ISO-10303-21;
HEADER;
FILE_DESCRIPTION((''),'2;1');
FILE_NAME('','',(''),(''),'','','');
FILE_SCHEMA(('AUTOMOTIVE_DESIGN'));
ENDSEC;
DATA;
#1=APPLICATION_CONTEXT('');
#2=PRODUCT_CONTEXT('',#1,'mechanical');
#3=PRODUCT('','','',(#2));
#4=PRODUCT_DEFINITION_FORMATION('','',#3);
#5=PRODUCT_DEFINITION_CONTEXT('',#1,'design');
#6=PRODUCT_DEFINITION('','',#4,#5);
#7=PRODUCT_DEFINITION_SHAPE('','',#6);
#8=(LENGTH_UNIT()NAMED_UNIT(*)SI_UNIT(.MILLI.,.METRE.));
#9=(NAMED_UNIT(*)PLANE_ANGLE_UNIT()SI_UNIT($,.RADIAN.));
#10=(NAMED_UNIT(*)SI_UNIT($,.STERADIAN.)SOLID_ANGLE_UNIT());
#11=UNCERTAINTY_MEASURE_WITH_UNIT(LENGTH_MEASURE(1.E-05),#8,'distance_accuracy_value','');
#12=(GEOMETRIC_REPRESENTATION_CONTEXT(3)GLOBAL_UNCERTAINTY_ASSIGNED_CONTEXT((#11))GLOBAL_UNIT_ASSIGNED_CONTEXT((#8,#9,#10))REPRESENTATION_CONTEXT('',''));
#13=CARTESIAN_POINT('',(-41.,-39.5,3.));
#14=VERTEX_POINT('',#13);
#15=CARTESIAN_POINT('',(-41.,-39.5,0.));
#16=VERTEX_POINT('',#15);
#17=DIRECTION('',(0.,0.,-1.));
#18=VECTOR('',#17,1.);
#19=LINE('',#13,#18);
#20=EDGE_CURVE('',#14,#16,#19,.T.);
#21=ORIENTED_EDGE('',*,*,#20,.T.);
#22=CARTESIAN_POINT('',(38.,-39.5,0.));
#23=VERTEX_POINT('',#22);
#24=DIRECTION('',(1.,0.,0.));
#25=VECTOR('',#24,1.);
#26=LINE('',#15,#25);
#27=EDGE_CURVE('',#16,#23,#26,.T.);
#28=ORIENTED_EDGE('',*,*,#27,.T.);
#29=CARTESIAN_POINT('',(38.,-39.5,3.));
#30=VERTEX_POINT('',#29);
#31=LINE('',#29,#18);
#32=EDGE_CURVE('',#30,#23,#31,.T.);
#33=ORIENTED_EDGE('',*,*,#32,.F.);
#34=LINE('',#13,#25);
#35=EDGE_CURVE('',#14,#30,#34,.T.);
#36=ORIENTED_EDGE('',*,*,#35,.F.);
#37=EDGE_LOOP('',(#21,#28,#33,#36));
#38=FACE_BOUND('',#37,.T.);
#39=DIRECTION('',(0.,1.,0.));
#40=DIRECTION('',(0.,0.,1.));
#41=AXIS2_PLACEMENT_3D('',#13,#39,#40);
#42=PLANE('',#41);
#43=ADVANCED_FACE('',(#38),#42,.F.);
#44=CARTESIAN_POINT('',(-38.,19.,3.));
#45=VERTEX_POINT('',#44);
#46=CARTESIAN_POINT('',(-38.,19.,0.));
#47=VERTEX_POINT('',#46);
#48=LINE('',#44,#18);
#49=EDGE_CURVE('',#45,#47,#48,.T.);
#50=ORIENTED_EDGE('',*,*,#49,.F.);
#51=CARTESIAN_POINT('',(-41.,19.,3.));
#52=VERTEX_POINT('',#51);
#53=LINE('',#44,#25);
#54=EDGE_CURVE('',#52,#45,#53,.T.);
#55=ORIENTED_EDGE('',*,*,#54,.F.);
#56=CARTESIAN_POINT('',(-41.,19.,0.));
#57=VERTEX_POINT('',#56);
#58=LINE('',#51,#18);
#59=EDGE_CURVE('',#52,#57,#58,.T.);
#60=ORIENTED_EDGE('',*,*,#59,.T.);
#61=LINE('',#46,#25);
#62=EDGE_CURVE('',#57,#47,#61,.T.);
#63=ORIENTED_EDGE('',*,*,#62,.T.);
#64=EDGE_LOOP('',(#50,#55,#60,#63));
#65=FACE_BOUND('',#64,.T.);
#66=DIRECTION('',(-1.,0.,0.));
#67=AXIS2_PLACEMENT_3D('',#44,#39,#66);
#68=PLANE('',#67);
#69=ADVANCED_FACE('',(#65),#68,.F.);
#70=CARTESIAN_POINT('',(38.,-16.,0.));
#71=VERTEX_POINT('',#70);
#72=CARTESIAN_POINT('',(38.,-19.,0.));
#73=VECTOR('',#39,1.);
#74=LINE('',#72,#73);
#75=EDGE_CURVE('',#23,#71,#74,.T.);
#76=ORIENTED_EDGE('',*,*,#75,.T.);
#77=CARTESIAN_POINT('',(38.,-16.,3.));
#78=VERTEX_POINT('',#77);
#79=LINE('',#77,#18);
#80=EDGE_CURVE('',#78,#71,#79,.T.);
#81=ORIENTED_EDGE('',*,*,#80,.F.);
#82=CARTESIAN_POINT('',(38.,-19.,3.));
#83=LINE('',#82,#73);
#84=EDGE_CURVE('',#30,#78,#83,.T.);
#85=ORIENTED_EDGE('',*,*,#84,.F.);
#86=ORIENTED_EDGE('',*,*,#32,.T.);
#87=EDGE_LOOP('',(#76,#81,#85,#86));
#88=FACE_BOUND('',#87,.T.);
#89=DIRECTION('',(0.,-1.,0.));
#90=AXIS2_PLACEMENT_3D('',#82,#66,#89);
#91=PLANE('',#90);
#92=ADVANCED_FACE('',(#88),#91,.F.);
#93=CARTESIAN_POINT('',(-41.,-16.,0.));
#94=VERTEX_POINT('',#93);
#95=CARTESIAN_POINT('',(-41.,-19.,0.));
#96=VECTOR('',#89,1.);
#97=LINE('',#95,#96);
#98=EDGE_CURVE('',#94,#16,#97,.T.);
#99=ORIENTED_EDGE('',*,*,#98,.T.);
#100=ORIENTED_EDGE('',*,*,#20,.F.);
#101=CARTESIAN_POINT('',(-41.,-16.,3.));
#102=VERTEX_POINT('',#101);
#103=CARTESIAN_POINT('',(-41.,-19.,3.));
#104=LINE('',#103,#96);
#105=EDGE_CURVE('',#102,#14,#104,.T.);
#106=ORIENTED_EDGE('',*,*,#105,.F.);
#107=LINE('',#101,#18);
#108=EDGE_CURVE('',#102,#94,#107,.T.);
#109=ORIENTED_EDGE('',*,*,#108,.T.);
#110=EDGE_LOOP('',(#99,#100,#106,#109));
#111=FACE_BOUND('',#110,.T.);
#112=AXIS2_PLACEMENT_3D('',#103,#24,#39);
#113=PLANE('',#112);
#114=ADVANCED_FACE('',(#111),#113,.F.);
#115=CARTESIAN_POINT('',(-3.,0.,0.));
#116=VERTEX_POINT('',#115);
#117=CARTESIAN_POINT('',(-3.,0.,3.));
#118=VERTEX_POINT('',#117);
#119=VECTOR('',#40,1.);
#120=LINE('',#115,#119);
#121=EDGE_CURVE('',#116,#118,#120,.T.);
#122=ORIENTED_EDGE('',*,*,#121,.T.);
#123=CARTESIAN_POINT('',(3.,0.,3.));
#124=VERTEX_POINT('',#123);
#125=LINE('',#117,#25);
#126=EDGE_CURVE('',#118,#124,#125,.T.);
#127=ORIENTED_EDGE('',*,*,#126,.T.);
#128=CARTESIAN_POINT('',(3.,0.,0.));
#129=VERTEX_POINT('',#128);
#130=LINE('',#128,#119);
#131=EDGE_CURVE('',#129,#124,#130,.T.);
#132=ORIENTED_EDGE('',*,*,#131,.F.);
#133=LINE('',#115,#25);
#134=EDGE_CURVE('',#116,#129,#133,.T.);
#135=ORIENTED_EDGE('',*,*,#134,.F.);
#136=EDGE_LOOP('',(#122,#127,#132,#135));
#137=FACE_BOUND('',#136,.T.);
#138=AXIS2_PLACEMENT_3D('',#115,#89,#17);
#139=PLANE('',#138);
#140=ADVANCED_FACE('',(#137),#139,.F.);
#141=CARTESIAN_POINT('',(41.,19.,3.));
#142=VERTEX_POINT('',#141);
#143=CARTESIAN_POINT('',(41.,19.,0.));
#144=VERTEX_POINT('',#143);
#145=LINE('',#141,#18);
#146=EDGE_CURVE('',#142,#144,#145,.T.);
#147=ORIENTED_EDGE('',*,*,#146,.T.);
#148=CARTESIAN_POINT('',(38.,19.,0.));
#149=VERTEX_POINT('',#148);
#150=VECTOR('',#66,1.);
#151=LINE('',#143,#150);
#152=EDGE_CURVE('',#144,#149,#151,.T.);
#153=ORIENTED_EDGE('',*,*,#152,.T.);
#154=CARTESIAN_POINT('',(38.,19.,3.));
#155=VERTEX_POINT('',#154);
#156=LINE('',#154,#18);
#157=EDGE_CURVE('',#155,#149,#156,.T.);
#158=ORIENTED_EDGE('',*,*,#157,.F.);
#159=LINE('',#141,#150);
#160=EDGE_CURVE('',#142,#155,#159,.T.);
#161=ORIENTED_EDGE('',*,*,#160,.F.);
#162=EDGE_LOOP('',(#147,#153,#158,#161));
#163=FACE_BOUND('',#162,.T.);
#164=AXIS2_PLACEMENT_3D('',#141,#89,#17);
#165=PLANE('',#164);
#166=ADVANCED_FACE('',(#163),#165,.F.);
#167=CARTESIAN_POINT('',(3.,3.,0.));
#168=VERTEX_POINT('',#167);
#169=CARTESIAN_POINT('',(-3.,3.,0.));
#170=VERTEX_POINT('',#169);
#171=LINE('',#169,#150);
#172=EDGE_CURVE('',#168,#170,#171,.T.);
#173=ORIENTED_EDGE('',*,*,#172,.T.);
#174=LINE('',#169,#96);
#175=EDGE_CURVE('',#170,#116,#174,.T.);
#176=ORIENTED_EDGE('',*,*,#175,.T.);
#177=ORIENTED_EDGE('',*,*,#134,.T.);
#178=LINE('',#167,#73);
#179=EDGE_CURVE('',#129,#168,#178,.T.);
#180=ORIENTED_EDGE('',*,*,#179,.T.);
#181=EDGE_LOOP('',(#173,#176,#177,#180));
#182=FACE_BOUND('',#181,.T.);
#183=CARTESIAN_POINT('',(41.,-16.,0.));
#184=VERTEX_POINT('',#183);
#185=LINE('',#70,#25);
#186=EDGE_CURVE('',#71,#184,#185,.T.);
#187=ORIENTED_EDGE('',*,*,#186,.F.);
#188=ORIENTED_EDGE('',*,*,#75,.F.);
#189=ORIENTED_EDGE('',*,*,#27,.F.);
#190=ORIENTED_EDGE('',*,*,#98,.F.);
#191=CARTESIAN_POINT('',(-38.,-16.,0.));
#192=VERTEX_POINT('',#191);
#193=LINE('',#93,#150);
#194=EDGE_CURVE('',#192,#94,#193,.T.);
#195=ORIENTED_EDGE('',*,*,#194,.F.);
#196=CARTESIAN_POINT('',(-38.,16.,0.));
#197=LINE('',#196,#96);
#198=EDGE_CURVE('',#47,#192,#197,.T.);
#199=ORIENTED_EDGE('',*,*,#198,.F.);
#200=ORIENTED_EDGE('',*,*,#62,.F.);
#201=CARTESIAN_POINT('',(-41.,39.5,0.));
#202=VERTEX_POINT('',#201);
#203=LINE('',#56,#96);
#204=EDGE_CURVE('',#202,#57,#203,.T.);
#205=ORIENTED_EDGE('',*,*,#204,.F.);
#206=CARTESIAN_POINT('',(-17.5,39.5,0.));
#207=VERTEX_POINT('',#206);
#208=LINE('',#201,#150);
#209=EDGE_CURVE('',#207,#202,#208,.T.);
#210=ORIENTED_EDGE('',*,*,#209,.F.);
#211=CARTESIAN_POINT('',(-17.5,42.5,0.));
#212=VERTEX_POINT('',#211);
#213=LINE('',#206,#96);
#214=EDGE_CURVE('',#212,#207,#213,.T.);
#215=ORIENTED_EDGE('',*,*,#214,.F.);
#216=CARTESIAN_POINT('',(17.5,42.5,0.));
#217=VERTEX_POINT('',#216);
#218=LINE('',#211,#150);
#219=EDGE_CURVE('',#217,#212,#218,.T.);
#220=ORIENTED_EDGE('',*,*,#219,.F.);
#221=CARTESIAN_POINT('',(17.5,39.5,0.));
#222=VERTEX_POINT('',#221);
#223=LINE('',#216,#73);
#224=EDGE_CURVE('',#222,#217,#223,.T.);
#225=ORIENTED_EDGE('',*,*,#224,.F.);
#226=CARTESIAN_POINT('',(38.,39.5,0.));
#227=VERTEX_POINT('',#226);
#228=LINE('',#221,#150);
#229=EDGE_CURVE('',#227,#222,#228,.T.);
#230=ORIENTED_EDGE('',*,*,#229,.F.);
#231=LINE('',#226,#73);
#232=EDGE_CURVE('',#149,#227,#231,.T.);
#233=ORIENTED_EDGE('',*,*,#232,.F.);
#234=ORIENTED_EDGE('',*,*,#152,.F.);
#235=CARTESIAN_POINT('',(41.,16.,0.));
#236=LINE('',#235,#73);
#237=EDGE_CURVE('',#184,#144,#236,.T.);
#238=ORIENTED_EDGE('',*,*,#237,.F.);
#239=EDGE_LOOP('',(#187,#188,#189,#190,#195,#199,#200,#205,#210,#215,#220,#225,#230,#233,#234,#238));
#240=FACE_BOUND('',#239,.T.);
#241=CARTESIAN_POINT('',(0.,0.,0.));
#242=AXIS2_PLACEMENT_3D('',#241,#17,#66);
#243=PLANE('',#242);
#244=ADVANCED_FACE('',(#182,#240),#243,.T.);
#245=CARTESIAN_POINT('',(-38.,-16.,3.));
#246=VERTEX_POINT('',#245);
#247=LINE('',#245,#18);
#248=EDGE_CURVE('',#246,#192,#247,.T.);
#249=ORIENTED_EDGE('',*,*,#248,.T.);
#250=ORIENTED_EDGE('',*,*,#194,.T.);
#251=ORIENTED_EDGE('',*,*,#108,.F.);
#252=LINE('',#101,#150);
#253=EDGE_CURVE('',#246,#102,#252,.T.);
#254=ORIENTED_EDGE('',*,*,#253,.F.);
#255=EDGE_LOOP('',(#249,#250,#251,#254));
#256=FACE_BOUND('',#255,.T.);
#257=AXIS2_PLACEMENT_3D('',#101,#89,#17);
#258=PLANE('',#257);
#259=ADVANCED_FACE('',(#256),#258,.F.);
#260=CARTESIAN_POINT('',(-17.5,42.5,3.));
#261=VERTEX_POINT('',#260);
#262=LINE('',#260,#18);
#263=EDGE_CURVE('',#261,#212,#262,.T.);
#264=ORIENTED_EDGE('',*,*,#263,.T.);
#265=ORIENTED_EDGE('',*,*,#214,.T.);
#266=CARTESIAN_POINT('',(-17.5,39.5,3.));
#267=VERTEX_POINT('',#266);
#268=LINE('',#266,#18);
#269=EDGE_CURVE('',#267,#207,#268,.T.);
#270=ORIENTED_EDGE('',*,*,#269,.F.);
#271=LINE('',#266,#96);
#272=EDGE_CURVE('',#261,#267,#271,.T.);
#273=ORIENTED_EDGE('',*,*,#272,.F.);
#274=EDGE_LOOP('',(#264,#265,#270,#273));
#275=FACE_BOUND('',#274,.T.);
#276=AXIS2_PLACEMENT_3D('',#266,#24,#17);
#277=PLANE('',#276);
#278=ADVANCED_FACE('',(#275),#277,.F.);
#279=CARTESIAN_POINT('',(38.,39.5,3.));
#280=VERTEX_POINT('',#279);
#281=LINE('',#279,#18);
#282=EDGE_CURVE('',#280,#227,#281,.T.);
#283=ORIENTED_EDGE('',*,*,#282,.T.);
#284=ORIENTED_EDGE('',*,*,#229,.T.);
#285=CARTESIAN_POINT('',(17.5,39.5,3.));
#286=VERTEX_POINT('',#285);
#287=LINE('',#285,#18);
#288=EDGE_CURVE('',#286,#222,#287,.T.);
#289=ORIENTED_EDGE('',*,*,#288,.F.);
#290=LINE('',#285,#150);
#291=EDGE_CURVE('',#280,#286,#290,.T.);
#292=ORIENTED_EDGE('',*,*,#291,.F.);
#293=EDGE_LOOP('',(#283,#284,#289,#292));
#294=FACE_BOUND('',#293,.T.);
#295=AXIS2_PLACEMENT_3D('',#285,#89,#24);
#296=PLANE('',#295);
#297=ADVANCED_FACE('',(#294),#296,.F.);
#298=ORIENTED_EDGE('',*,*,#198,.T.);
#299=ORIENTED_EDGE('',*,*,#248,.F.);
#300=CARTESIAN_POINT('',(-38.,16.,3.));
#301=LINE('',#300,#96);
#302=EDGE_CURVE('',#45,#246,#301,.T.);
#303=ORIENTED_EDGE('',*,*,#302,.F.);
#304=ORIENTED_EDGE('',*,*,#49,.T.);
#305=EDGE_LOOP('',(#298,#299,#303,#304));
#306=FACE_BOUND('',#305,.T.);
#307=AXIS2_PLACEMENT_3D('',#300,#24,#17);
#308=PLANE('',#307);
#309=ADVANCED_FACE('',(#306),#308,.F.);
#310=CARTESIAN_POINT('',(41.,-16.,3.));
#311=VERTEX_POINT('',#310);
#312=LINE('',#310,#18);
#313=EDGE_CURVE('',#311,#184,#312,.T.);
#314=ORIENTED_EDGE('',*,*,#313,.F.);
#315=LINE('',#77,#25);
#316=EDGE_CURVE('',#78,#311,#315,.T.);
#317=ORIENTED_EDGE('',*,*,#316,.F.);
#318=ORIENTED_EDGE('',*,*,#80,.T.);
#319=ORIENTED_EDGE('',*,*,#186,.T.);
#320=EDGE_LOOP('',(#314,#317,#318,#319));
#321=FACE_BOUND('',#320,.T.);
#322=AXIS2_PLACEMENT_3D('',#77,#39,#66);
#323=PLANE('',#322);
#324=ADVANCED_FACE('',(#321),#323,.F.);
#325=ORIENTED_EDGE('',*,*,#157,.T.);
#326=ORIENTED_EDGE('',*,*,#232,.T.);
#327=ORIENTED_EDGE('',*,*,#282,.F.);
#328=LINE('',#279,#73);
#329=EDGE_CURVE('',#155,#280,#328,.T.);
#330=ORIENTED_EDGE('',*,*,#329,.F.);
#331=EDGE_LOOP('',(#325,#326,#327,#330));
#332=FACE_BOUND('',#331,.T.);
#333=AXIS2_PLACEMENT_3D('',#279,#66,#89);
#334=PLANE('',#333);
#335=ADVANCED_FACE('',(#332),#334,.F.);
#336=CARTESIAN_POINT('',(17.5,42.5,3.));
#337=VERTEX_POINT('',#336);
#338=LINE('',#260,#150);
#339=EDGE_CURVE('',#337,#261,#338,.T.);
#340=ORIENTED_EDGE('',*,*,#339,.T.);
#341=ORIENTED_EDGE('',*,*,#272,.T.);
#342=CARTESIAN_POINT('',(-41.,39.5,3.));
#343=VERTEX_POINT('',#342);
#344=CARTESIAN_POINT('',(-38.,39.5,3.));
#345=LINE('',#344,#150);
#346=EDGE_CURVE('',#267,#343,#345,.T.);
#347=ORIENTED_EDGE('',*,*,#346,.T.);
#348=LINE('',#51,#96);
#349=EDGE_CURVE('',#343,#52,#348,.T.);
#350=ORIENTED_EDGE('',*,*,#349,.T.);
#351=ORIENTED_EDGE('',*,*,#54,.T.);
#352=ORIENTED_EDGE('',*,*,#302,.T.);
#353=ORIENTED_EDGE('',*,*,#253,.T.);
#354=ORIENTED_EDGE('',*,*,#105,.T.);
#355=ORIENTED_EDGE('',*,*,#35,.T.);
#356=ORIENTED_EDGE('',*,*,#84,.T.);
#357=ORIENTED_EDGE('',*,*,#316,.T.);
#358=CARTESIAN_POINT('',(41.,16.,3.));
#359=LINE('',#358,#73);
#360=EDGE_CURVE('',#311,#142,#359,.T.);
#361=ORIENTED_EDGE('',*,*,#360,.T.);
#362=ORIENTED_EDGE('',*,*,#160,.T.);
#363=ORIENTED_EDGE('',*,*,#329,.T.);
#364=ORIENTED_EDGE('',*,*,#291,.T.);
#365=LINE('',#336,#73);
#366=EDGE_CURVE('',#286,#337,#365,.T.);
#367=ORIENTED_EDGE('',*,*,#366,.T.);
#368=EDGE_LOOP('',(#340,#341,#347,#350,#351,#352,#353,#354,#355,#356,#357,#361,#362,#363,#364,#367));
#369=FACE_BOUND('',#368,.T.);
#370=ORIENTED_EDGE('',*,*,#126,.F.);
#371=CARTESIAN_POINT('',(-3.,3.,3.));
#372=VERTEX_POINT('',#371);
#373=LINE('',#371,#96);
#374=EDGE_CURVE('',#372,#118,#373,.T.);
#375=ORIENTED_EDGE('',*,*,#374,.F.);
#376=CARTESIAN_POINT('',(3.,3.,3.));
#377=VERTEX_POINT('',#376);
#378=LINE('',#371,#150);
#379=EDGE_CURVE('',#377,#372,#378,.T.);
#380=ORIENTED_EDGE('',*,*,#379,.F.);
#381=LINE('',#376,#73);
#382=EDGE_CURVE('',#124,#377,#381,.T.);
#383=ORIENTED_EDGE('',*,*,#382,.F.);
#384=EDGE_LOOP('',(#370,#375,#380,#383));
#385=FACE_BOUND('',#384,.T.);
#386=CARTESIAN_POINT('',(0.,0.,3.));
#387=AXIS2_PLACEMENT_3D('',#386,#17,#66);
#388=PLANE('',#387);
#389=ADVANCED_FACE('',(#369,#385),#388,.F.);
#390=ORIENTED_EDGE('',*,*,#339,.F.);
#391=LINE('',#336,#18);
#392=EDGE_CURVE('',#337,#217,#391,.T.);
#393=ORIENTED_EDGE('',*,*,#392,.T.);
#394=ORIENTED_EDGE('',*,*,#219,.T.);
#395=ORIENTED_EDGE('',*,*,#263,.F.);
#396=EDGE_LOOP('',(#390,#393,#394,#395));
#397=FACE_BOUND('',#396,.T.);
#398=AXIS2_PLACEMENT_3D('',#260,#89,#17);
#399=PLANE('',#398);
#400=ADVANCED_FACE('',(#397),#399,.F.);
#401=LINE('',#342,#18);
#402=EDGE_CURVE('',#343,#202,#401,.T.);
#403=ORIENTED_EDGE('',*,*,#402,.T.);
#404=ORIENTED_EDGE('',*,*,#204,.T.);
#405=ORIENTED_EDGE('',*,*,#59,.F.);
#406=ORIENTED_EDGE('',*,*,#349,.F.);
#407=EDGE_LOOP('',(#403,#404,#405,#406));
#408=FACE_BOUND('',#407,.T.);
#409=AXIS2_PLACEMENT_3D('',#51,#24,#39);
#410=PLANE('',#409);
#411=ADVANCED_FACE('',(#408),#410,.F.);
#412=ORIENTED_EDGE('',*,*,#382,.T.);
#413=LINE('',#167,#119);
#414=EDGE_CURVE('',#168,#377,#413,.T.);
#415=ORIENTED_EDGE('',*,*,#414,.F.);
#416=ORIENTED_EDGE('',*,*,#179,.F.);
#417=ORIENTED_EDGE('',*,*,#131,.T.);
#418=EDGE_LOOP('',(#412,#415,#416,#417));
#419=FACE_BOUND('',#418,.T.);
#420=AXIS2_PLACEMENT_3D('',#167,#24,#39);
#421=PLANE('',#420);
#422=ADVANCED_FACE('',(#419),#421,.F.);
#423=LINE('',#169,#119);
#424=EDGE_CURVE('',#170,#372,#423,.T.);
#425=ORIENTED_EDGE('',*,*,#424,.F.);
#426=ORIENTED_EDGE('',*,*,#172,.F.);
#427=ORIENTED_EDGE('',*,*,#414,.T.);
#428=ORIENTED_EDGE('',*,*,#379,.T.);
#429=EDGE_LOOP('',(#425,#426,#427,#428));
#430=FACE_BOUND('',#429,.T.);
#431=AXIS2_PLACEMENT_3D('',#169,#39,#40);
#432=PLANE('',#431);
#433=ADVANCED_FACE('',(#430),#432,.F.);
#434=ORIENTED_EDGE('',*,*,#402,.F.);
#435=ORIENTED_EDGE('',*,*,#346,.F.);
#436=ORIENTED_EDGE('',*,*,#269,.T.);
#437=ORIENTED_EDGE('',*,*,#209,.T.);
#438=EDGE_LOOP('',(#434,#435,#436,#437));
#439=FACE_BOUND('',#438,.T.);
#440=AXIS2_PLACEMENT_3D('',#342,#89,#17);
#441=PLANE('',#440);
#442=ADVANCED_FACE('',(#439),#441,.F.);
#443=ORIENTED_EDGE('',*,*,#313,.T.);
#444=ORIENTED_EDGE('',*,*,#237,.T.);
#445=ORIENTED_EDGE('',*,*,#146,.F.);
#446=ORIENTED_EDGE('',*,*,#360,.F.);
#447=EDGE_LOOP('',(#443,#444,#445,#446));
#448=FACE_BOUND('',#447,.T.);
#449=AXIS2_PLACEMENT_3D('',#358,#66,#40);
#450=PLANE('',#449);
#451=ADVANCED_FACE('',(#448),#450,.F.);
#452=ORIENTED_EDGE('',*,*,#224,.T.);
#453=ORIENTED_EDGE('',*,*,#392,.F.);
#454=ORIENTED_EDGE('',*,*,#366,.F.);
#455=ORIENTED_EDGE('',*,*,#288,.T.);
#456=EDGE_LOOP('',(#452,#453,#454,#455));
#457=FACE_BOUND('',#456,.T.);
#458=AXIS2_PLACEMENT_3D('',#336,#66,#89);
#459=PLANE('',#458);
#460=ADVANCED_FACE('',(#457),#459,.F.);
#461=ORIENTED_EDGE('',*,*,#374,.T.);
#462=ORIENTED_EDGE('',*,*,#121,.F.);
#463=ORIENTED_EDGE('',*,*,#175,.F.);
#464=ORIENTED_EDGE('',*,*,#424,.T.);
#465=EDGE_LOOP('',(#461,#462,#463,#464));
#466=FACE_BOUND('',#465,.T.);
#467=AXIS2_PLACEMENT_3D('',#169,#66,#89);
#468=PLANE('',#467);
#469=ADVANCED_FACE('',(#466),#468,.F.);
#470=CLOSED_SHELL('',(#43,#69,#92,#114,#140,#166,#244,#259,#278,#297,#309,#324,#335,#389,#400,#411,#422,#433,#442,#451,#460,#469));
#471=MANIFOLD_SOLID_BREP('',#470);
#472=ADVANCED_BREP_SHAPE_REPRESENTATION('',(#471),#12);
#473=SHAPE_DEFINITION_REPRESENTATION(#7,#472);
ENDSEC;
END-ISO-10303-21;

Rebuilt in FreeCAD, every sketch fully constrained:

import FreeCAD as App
import Part
import Sketcher


def add_polygon(sketch, points):
    """Adds a closed chain of lines whose ends are joined by coincident constraints."""
    first, n = sketch.GeometryCount, len(points)
    for a, b in zip(points, points[1:] + points[:1]):
        sketch.addGeometry(Part.LineSegment(App.Vector(*a, 0), App.Vector(*b, 0)), False)
    for i in range(n):
        sketch.addConstraint(Sketcher.Constraint("Coincident", first + i, 2, first + (i + 1) % n, 1))

doc = App.newDocument("Part")
body = doc.addObject("PartDesign::Body", "Body")

sketch1 = doc.addObject("Sketcher::SketchObject", "Sketch")
body.addObject(sketch1)
sketch1.AttachmentSupport = (doc.XY_Plane, [""])
sketch1.MapMode = "FlatFace"
add_polygon(sketch1, [(-17.5, 39.5), (-41, 39.5), (-41, 19), (-38, 19), (-38, -16), (-41, -16), (-41, -39.5), (38, -39.5), (38, -16), (41, -16), (41, 19), (38, 19), (38, 39.5), (17.5, 39.5), (17.5, 42.5), (-17.5, 42.5)])
sketch1.addConstraint(Sketcher.Constraint("Horizontal", 0))
sketch1.addConstraint(Sketcher.Constraint("Vertical", 1))
sketch1.addConstraint(Sketcher.Constraint("Horizontal", 2))
sketch1.addConstraint(Sketcher.Constraint("Vertical", 3))
sketch1.addConstraint(Sketcher.Constraint("Horizontal", 4))
sketch1.addConstraint(Sketcher.Constraint("Vertical", 5))
sketch1.addConstraint(Sketcher.Constraint("Horizontal", 6))
sketch1.addConstraint(Sketcher.Constraint("Vertical", 7))
sketch1.addConstraint(Sketcher.Constraint("Horizontal", 8))
sketch1.addConstraint(Sketcher.Constraint("Vertical", 9))
sketch1.addConstraint(Sketcher.Constraint("Horizontal", 10))
sketch1.addConstraint(Sketcher.Constraint("Vertical", 11))
sketch1.addConstraint(Sketcher.Constraint("Horizontal", 12))
sketch1.addConstraint(Sketcher.Constraint("Vertical", 13))
sketch1.addConstraint(Sketcher.Constraint("Horizontal", 14))
sketch1.addConstraint(Sketcher.Constraint("Vertical", 15))
sketch1.addConstraint(Sketcher.Constraint("Symmetric", 3, 2, 7, 2, -2))
sketch1.addConstraint(Sketcher.Constraint("Symmetric", 1, 2, 9, 2, -2))
sketch1.addConstraint(Sketcher.Constraint("Symmetric", 12, 2, 15, 2, -2))
sketch1.addConstraint(Sketcher.Constraint("Symmetric", 0, 2, 5, 2, -1))
sketch1.addConstraint(Sketcher.Constraint("Vertical", 7, 2, 10, 2))
sketch1.addConstraint(Sketcher.Constraint("Equal", 12, 1))
sketch1.addConstraint(Sketcher.Constraint("Equal", 14, 3))
sketch1.addConstraint(Sketcher.Constraint("Equal", 0, 5))
sketch1.addConstraint(Sketcher.Constraint("Equal", 10, 13))
sketch1.addConstraint(Sketcher.Constraint("DistanceX", 2, 1, 2, 2, 3.0))
sketch1.addConstraint(Sketcher.Constraint("DistanceX", 6, 1, 6, 2, 79.0))
sketch1.addConstraint(Sketcher.Constraint("DistanceX", 14, 2, 14, 1, 35.0))
pad1 = doc.addObject("PartDesign::Pad", "Pad")
body.addObject(pad1)
pad1.Profile = sketch1
pad1.Length = 3

sketch2 = doc.addObject("Sketcher::SketchObject", "Sketch001")
body.addObject(sketch2)
sketch2.AttachmentSupport = (doc.XY_Plane, [""])
sketch2.MapMode = "FlatFace"
sketch2.AttachmentOffset = App.Placement(App.Vector(0, 0, 3), App.Rotation())
add_polygon(sketch2, [(-3, 3), (-3, 0), (3, 0), (3, 3)])
sketch2.addConstraint(Sketcher.Constraint("Vertical", 0))
sketch2.addConstraint(Sketcher.Constraint("Horizontal", 1))
sketch2.addConstraint(Sketcher.Constraint("Vertical", 2))
sketch2.addConstraint(Sketcher.Constraint("Horizontal", 3))
sketch2.addConstraint(Sketcher.Constraint("Symmetric", 0, 2, 1, 2, -1, 1))
sketch2.addConstraint(Sketcher.Constraint("DistanceX", 1, 1, 1, 2, 6.0))
sketch2.addConstraint(Sketcher.Constraint("DistanceY", 0, 2, 0, 1, 3.0))
pocket1 = doc.addObject("PartDesign::Pocket", "Pocket")
body.addObject(pocket1)
pocket1.Profile = sketch2
pocket1.Length = 3

doc.recompute()
